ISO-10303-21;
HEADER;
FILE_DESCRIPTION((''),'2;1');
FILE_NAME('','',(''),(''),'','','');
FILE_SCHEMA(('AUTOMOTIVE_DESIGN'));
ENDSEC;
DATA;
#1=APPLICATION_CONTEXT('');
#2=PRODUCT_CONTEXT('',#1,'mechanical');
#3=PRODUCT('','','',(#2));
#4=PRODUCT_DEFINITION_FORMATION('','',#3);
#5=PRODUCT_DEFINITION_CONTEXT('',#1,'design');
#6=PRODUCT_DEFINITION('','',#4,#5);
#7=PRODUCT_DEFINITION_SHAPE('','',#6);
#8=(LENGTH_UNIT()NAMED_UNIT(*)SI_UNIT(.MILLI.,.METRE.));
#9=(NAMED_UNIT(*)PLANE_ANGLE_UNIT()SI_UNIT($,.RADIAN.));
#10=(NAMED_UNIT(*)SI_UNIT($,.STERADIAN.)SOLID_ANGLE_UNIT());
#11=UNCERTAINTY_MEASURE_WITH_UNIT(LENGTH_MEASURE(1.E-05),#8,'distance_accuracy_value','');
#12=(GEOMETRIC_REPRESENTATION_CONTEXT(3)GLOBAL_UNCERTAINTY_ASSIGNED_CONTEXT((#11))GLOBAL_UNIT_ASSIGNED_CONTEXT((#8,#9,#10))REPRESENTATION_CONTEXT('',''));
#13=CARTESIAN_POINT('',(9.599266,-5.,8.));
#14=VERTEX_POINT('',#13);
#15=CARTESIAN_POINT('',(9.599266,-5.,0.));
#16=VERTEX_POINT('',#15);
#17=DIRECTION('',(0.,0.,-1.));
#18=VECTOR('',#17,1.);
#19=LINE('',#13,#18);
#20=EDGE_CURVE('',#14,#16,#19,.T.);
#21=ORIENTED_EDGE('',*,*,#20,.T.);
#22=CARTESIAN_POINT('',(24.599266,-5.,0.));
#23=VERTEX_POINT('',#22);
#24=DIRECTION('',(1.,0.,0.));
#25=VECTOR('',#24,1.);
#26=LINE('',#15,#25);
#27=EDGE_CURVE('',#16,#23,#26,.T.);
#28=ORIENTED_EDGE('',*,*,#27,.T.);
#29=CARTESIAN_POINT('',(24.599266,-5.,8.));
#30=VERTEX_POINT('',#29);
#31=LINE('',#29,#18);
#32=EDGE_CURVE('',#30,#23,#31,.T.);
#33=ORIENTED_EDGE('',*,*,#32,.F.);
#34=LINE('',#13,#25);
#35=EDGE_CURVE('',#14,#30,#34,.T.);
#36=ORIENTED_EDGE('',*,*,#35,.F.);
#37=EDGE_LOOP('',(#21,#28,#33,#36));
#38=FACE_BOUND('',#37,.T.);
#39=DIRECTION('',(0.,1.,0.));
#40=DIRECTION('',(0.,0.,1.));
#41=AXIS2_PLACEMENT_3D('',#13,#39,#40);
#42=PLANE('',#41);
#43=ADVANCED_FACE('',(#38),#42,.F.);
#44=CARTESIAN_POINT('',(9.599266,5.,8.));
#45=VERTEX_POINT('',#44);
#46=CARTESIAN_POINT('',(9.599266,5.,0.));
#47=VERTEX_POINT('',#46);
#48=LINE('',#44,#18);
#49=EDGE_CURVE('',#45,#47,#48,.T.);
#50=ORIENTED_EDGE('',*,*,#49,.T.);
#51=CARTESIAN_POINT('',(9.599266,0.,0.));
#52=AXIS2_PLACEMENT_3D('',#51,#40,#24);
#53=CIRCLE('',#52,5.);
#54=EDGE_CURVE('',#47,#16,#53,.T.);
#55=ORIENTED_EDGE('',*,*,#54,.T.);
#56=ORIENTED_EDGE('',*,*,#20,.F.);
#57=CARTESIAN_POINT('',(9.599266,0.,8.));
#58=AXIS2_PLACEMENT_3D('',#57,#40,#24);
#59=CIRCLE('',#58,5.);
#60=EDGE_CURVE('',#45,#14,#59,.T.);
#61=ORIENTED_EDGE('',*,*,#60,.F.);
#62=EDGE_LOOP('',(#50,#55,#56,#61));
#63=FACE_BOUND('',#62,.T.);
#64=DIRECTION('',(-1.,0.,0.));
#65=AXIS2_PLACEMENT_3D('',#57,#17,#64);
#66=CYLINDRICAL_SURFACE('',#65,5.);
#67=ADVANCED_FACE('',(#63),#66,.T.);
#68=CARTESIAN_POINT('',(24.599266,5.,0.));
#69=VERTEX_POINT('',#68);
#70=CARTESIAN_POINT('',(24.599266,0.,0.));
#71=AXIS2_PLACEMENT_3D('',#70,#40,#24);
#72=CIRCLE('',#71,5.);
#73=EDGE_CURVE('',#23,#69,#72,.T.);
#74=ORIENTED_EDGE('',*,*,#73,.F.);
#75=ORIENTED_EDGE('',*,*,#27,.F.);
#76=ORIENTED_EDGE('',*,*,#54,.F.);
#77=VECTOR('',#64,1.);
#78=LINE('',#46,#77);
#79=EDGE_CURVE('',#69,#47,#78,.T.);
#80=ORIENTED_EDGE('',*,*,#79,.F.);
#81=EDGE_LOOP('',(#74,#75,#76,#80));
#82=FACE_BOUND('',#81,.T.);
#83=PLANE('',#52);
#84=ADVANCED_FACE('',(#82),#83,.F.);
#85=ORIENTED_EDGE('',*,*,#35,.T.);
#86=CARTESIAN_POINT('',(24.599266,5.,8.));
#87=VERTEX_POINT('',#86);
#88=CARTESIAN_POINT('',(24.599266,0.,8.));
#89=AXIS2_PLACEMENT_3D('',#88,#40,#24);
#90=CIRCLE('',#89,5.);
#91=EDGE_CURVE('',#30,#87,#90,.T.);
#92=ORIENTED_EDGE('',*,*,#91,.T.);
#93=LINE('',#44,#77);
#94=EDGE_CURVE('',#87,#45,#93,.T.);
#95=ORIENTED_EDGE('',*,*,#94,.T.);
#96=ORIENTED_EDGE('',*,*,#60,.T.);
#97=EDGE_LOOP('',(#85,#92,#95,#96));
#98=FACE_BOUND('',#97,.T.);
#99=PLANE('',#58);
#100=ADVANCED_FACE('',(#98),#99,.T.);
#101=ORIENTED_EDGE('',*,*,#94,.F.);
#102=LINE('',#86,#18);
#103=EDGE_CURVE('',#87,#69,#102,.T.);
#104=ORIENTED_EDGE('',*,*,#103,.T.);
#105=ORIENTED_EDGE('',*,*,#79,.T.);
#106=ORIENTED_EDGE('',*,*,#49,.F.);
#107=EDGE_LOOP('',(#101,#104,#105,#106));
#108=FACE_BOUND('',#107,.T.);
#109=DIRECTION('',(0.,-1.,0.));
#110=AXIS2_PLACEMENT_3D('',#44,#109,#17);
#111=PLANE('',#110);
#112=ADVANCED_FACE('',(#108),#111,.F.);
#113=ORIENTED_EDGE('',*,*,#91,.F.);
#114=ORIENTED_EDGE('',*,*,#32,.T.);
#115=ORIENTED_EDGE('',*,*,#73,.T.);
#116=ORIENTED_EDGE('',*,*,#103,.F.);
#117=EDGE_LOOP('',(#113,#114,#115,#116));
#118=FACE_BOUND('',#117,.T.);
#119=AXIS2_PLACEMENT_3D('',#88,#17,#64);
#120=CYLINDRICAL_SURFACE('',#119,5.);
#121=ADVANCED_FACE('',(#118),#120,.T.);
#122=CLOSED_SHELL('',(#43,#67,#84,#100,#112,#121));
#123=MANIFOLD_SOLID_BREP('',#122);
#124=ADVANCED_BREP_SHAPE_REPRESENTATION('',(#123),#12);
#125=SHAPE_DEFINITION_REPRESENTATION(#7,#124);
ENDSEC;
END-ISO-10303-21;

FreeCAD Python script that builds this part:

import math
import FreeCAD as App
import Part
import Sketcher

V = App.Vector

doc = App.newDocument("Part")
body = doc.addObject("PartDesign::Body", "Body")

# Sketch on XY plane
sketch1 = body.newObject("Sketcher::SketchObject", "Sketch")
sketch1.AttachmentSupport = (doc.getObject("XY_Plane"), [""])
sketch1.MapMode = "FlatFace"
sketch1.addGeometry(Part.LineSegment(V(25, 5, 0), V(10, 5, 0)), False)
sketch1.addGeometry(Part.ArcOfCircle(Part.Circle(V(10, 0, 0), V(0, 0, 1), 5), math.radians(90), math.radians(270)), False)
sketch1.addGeometry(Part.LineSegment(V(10, -5, 0), V(25, -5, 0)), False)
sketch1.addGeometry(Part.ArcOfCircle(Part.Circle(V(25, 0, 0), V(0, 0, 1), 5), math.radians(-90), math.radians(90)), False)
sketch1.addConstraint(Sketcher.Constraint("Tangent", 0, 2, 1, 1))
sketch1.addConstraint(Sketcher.Constraint("Tangent", 1, 2, 2, 1))
sketch1.addConstraint(Sketcher.Constraint("Tangent", 2, 2, 3, 1))
sketch1.addConstraint(Sketcher.Constraint("Tangent", 3, 2, 0, 1))
sketch1.addConstraint(Sketcher.Constraint("Horizontal", 0))
sketch1.addConstraint(Sketcher.Constraint("Horizontal", 2))
sketch1.addConstraint(Sketcher.Constraint("PointOnObject", 1, 3, -1))
sketch1.addConstraint(Sketcher.Constraint("Radius", 1, 5.0))
sketch1.addConstraint(Sketcher.Constraint("DistanceX", 0, 2, 0, 1, 15.0))
sketch1.addConstraint(Sketcher.Constraint("DistanceX", -1, 1, 1, 3, 9.599266))
pad1 = body.newObject("PartDesign::Pad", "Pad")
pad1.Profile = sketch1
pad1.Length = 8

doc.recompute()
